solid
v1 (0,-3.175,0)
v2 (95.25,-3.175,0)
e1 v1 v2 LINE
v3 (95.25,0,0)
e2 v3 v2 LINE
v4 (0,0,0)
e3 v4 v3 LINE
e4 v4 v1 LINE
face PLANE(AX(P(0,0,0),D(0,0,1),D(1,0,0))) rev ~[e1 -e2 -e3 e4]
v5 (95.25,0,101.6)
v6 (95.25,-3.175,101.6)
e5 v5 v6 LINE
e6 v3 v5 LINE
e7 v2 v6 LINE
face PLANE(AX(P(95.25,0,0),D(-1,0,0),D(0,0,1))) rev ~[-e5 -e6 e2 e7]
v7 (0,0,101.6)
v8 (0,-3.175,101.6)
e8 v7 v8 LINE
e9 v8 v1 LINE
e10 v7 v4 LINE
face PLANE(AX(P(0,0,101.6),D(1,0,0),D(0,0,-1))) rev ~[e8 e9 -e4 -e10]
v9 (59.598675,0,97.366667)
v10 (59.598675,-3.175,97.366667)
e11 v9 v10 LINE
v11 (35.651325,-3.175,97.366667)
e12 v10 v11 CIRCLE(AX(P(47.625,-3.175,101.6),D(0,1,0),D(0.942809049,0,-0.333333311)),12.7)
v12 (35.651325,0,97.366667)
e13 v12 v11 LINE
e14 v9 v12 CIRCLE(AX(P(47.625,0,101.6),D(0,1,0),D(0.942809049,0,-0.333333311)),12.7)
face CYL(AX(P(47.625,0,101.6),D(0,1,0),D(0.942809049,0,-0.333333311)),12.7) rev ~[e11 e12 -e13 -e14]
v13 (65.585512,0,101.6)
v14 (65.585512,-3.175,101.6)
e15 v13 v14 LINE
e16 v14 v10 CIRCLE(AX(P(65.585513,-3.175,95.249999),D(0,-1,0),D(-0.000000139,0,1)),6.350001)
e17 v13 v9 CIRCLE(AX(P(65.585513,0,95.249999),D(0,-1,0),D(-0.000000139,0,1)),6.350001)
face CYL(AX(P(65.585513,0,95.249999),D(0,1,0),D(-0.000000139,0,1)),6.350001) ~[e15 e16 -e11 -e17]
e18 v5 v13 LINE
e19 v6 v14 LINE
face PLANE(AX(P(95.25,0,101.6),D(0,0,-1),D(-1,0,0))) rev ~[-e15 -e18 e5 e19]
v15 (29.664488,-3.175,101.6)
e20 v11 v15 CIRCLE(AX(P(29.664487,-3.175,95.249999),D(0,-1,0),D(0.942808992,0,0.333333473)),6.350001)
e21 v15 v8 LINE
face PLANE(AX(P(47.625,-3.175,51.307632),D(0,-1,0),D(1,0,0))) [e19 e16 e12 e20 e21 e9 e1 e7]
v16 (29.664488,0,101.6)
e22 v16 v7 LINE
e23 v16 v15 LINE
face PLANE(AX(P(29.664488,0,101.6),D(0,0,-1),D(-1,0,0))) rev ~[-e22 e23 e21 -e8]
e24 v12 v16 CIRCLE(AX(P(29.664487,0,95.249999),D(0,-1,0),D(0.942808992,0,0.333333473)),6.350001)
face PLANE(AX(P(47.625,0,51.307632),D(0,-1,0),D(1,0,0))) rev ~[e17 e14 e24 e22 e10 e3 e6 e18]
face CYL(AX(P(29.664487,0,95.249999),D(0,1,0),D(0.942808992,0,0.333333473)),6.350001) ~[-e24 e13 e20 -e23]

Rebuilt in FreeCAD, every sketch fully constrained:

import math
import FreeCAD as App
import Part
import Sketcher

V = App.Vector
Q = App.Units.Quantity

doc = App.newDocument("Part")
body = doc.addObject("PartDesign::Body", "Body")

sketch1 = body.newObject("Sketcher::SketchObject", "Sketch")
sketch1.AttachmentSupport = (doc.getObject("XZ_Plane"), [""])
sketch1.MapMode = "FlatFace"
sketch1.addGeometry([
    Part.LineSegment(V(0, 102, 0), V(0, 0, 0)),
    Part.LineSegment(V(0, 0, 0), V(95, 0, 0)),
    Part.LineSegment(V(95, 0, 0), V(95, 102, 0)),
    Part.LineSegment(V(95, 102, 0), V(66, 102, 0)),
    Part.ArcOfCircle(Part.Circle(V(66, 95, 0), V(0, 0, 1), 6), math.radians(90), math.radians(161)),
    Part.ArcOfCircle(Part.Circle(V(48, 102, 0), V(0, 0, 1), 13), math.radians(-161), math.radians(-19)),
    Part.ArcOfCircle(Part.Circle(V(30, 95, 0), V(0, 0, 1), 6), math.radians(19), math.radians(90)),
    Part.LineSegment(V(30, 102, 0), V(0, 102, 0)),
], False)
sketch1.addConstraint([
    Sketcher.Constraint("Coincident", 0, 2, 1, 1),
    Sketcher.Constraint("Coincident", 1, 2, 2, 1),
    Sketcher.Constraint("Coincident", 2, 2, 3, 1),
    Sketcher.Constraint("Tangent", 3, 2, 4, 1),
    Sketcher.Constraint("Tangent", 4, 2, 5, 2),
    Sketcher.Constraint("Tangent", 5, 1, 6, 1),
    Sketcher.Constraint("Tangent", 6, 2, 7, 1),
    Sketcher.Constraint("Coincident", 7, 2, 0, 1),
    Sketcher.Constraint("Vertical", 0),
    Sketcher.Constraint("Horizontal", 1),
    Sketcher.Constraint("Vertical", 2),
    Sketcher.Constraint("Horizontal", 3),
    Sketcher.Constraint("Horizontal", 7),
    Sketcher.Constraint("Coincident", 0, 2, -1, 1),
    Sketcher.Constraint("Equal", 4, 6),
    Sketcher.Constraint("Horizontal", 4, 3, 6, 3),
    Sketcher.Constraint("Horizontal", 5, 3, 2, 2),
    Sketcher.Constraint("Equal", 3, 7),
    Sketcher.Constraint("Radius", 5, Q("0.5 in")),
    Sketcher.Constraint("DistanceY", 0, 2, 0, 1, Q("4 in")),
    Sketcher.Constraint("Radius", 4, Q("0.25 in")),
    Sketcher.Constraint("DistanceX", 1, 1, 1, 2, Q("3.75 in")),
])
pad1 = body.newObject("PartDesign::Pad", "Pad")
pad1.Profile = sketch1
pad1.Length = Q("0.125 in")

doc.recompute()
